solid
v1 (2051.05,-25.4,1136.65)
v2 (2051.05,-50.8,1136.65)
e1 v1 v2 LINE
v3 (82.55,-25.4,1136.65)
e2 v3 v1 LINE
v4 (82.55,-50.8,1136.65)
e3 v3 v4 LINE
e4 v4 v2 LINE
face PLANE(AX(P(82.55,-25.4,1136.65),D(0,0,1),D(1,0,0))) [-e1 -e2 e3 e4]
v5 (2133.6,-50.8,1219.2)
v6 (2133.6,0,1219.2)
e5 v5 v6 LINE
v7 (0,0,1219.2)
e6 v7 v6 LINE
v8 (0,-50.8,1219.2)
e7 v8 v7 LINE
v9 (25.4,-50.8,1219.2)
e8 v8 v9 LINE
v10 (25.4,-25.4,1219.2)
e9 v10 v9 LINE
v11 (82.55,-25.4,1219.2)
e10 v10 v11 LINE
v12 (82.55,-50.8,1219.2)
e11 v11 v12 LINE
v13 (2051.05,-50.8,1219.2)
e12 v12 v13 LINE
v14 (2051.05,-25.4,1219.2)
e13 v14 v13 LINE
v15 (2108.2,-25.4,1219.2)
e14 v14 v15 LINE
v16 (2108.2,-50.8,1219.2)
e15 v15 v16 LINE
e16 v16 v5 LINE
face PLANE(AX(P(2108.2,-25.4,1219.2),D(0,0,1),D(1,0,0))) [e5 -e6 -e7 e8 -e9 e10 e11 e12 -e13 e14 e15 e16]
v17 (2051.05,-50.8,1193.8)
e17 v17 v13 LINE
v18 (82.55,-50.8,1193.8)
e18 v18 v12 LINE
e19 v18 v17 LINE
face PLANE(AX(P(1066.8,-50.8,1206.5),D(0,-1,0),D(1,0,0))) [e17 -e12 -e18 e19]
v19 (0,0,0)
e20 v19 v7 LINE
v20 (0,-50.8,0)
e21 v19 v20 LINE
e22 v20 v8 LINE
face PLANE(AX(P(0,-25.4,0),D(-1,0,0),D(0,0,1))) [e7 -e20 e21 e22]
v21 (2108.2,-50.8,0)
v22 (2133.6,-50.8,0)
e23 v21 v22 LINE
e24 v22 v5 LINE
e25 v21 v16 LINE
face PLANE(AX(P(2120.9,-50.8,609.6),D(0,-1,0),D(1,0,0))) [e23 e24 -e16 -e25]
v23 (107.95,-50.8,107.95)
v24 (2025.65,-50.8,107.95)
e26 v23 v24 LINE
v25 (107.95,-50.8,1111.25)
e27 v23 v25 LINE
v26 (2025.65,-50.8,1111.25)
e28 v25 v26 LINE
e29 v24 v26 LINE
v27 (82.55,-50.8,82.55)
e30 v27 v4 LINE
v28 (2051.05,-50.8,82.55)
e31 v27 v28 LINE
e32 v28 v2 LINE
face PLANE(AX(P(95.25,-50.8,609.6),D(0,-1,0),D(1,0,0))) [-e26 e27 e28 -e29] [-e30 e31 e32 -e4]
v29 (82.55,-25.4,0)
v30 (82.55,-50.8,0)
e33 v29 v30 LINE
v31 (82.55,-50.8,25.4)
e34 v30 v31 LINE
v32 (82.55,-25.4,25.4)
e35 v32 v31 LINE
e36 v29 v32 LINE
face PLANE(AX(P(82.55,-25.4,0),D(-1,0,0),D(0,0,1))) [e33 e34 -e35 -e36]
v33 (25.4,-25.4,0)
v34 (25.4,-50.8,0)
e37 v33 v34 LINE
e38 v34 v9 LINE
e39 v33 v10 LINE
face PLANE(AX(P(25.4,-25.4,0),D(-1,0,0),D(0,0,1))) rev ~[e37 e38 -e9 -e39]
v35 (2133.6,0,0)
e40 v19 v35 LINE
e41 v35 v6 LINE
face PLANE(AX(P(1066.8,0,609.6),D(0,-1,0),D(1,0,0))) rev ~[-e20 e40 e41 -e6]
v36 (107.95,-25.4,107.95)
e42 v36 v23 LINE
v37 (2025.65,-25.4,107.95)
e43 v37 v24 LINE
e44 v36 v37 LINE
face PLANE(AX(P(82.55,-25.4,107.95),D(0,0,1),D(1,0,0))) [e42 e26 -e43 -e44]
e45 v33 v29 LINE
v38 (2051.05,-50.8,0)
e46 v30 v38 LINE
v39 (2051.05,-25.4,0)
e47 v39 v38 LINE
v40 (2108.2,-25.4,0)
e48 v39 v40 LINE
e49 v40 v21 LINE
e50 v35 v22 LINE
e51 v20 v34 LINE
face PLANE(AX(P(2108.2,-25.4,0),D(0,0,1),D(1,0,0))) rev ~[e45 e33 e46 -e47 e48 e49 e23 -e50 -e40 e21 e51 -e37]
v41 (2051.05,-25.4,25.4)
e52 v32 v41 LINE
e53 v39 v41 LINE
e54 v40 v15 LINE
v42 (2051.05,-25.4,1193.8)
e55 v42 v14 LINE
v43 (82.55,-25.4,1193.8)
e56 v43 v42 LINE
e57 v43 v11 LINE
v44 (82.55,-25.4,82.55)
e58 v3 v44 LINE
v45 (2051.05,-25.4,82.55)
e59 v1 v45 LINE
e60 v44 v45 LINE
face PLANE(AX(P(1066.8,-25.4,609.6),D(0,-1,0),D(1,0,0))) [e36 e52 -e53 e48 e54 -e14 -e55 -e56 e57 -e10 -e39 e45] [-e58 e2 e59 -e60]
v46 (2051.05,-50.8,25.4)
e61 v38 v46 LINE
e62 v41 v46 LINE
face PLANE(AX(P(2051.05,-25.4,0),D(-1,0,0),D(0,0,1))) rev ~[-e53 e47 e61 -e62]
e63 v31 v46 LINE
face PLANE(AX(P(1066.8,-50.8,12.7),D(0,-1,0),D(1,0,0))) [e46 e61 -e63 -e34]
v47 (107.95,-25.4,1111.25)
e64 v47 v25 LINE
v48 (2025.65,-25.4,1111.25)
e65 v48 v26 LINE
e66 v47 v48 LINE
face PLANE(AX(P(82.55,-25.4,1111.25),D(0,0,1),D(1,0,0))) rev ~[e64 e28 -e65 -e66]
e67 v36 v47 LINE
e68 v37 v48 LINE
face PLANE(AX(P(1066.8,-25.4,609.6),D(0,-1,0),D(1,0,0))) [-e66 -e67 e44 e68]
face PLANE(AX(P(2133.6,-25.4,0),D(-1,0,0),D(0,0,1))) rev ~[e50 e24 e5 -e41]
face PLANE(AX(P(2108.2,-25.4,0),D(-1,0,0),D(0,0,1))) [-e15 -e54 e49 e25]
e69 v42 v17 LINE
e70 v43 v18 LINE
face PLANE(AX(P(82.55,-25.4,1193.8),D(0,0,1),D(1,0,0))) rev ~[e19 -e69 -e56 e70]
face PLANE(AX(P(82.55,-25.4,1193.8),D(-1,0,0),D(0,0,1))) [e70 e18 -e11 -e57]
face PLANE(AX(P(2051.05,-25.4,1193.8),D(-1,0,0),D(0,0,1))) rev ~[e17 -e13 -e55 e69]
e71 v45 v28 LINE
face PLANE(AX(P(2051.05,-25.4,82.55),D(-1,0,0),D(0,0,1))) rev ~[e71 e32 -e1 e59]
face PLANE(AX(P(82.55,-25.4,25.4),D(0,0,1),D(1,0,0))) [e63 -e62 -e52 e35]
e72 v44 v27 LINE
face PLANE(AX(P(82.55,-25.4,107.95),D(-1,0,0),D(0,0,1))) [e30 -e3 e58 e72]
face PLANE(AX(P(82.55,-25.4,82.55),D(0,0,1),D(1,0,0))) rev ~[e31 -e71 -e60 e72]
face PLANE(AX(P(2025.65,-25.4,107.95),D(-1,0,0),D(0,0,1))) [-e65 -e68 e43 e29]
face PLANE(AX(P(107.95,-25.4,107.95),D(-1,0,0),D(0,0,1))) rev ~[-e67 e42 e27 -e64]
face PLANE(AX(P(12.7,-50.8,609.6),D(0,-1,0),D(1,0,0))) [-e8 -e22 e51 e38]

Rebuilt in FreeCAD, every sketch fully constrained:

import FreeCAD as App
import Part
import Sketcher
Q = App.Units.Quantity

doc = App.newDocument("Part")
body = doc.addObject("PartDesign::Body", "Body")

# Sketch on XZ plane
sketch1 = body.newObject("Sketcher::SketchObject", "Sketch")
sketch1.AttachmentSupport = (doc.getObject("XZ_Plane"), [""])
sketch1.MapMode = "FlatFace"
sketch1.addGeometry([
    Part.LineSegment(App.Vector(0, 1219, 0), App.Vector(0, 0, 0)),
    Part.LineSegment(App.Vector(0, 0, 0), App.Vector(2134, 0, 0)),
    Part.LineSegment(App.Vector(2134, 0, 0), App.Vector(2134, 1219, 0)),
    Part.LineSegment(App.Vector(2134, 1219, 0), App.Vector(0, 1219, 0)),
], False)
sketch1.addConstraint([
    Sketcher.Constraint("Coincident", 0, 2, 1, 1),
    Sketcher.Constraint("Coincident", 1, 2, 2, 1),
    Sketcher.Constraint("Coincident", 2, 2, 3, 1),
    Sketcher.Constraint("Coincident", 3, 2, 0, 1),
    Sketcher.Constraint("Vertical", 0),
    Sketcher.Constraint("Horizontal", 1),
    Sketcher.Constraint("Vertical", 2),
    Sketcher.Constraint("Horizontal", 3),
    Sketcher.Constraint("Coincident", 0, 2, -1, 1),
    Sketcher.Constraint("DistanceX", 1, 1, 1, 2, Q("84 in")),
    Sketcher.Constraint("DistanceY", 0, 2, 0, 1, Q("48 in")),
])
pad1 = body.newObject("PartDesign::Pad", "Pad")
pad1.Profile = sketch1
pad1.Length = Q("1 in")

# Sketch on XZ plane
sketch2 = body.newObject("Sketcher::SketchObject", "Sketch001")
sketch2.AttachmentSupport = (doc.getObject("XZ_Plane"), [""])
sketch2.MapMode = "FlatFace"
sketch2.AttachmentOffset = App.Placement(App.Vector(0, 0, 1 * 25.4), App.Rotation())
sketch2.addGeometry([
    Part.LineSegment(App.Vector(83, 1219, 0), App.Vector(83, 1194, 0)),
    Part.LineSegment(App.Vector(83, 1194, 0), App.Vector(2051, 1194, 0)),
    Part.LineSegment(App.Vector(2051, 1194, 0), App.Vector(2051, 1219, 0)),
    Part.LineSegment(App.Vector(2051, 1219, 0), App.Vector(83, 1219, 0)),
], False)
sketch2.addConstraint([
    Sketcher.Constraint("Coincident", 0, 2, 1, 1),
    Sketcher.Constraint("Coincident", 1, 2, 2, 1),
    Sketcher.Constraint("Coincident", 2, 2, 3, 1),
    Sketcher.Constraint("Coincident", 3, 2, 0, 1),
    Sketcher.Constraint("Vertical", 0),
    Sketcher.Constraint("Horizontal", 1),
    Sketcher.Constraint("Vertical", 2),
    Sketcher.Constraint("Horizontal", 3),
    Sketcher.Constraint("DistanceY", 0, 2, 0, 1, Q("1 in")),
    Sketcher.Constraint("DistanceX", 1, 1, 1, 2, Q("77.5 in")),
    Sketcher.Constraint("DistanceY", -1, 1, 0, 2, Q("47 in")),
    Sketcher.Constraint("DistanceX", -1, 1, 0, 2, Q("3.25 in")),
])
pad2 = body.newObject("PartDesign::Pad", "Pad001")
pad2.Profile = sketch2
pad2.Length = Q("1 in")

# Sketch on XZ plane
sketch3 = body.newObject("Sketcher::SketchObject", "Sketch002")
sketch3.AttachmentSupport = (doc.getObject("XZ_Plane"), [""])
sketch3.MapMode = "FlatFace"
sketch3.AttachmentOffset = App.Placement(App.Vector(0, 0, 1 * 25.4), App.Rotation())
sketch3.addGeometry([
    Part.LineSegment(App.Vector(83, 25, 0), App.Vector(83, 0, 0)),
    Part.LineSegment(App.Vector(83, 0, 0), App.Vector(2051, 0, 0)),
    Part.LineSegment(App.Vector(2051, 0, 0), App.Vector(2051, 25, 0)),
    Part.LineSegment(App.Vector(2051, 25, 0), App.Vector(83, 25, 0)),
], False)
sketch3.addConstraint([
    Sketcher.Constraint("Coincident", 0, 2, 1, 1),
    Sketcher.Constraint("Coincident", 1, 2, 2, 1),
    Sketcher.Constraint("Coincident", 2, 2, 3, 1),
    Sketcher.Constraint("Coincident", 3, 2, 0, 1),
    Sketcher.Constraint("Vertical", 0),
    Sketcher.Constraint("Horizontal", 1),
    Sketcher.Constraint("Vertical", 2),
    Sketcher.Constraint("Horizontal", 3),
    Sketcher.Constraint("PointOnObject", 0, 2, -1),
    Sketcher.Constraint("DistanceY", 0, 2, 0, 1, Q("1 in")),
    Sketcher.Constraint("DistanceX", 1, 1, 1, 2, Q("77.5 in")),
    Sketcher.Constraint("DistanceX", -1, 1, 0, 2, Q("3.25 in")),
])
pad3 = body.newObject("PartDesign::Pad", "Pad002")
pad3.Profile = sketch3
pad3.Length = Q("1 in")

# Sketch on XZ plane
sketch4 = body.newObject("Sketcher::SketchObject", "Sketch003")
sketch4.AttachmentSupport = (doc.getObject("XZ_Plane"), [""])
sketch4.MapMode = "FlatFace"
sketch4.AttachmentOffset = App.Placement(App.Vector(0, 0, 1 * 25.4), App.Rotation())
sketch4.addGeometry([
    Part.LineSegment(App.Vector(0, 1219, 0), App.Vector(0, 0, 0)),
    Part.LineSegment(App.Vector(0, 0, 0), App.Vector(25, 0, 0)),
    Part.LineSegment(App.Vector(25, 0, 0), App.Vector(25, 1219, 0)),
    Part.LineSegment(App.Vector(25, 1219, 0), App.Vector(0, 1219, 0)),
], False)
sketch4.addConstraint([
    Sketcher.Constraint("Coincident", 0, 2, 1, 1),
    Sketcher.Constraint("Coincident", 1, 2, 2, 1),
    Sketcher.Constraint("Coincident", 2, 2, 3, 1),
    Sketcher.Constraint("Coincident", 3, 2, 0, 1),
    Sketcher.Constraint("Vertical", 0),
    Sketcher.Constraint("Horizontal", 1),
    Sketcher.Constraint("Vertical", 2),
    Sketcher.Constraint("Horizontal", 3),
    Sketcher.Constraint("Coincident", 0, 2, -1, 1),
    Sketcher.Constraint("DistanceX", 1, 1, 1, 2, Q("1 in")),
    Sketcher.Constraint("DistanceY", 0, 2, 0, 1, Q("48 in")),
])
pad4 = body.newObject("PartDesign::Pad", "Pad003")
pad4.Profile = sketch4
pad4.Length = Q("1 in")

# Sketch on XZ plane
sketch5 = body.newObject("Sketcher::SketchObject", "Sketch004")
sketch5.AttachmentSupport = (doc.getObject("XZ_Plane"), [""])
sketch5.MapMode = "FlatFace"
sketch5.AttachmentOffset = App.Placement(App.Vector(0, 0, 1 * 25.4), App.Rotation())
sketch5.addGeometry([
    Part.LineSegment(App.Vector(2108, 1219, 0), App.Vector(2108, 0, 0)),
    Part.LineSegment(App.Vector(2108, 0, 0), App.Vector(2134, 0, 0)),
    Part.LineSegment(App.Vector(2134, 0, 0), App.Vector(2134, 1219, 0)),
    Part.LineSegment(App.Vector(2134, 1219, 0), App.Vector(2108, 1219, 0)),
], False)
sketch5.addConstraint([
    Sketcher.Constraint("Coincident", 0, 2, 1, 1),
    Sketcher.Constraint("Coincident", 1, 2, 2, 1),
    Sketcher.Constraint("Coincident", 2, 2, 3, 1),
    Sketcher.Constraint("Coincident", 3, 2, 0, 1),
    Sketcher.Constraint("Vertical", 0),
    Sketcher.Constraint("Horizontal", 1),
    Sketcher.Constraint("Vertical", 2),
    Sketcher.Constraint("Horizontal", 3),
    Sketcher.Constraint("PointOnObject", 0, 2, -1),
    Sketcher.Constraint("DistanceX", 1, 1, 1, 2, Q("1 in")),
    Sketcher.Constraint("DistanceY", 0, 2, 0, 1, Q("48 in")),
    Sketcher.Constraint("DistanceX", -1, 1, 0, 2, Q("83 in")),
])
pad5 = body.newObject("PartDesign::Pad", "Pad004")
pad5.Profile = sketch5
pad5.Length = Q("1 in")

# Sketch on XZ plane
sketch6 = body.newObject("Sketcher::SketchObject", "Sketch005")
sketch6.AttachmentSupport = (doc.getObject("XZ_Plane"), [""])
sketch6.MapMode = "FlatFace"
sketch6.AttachmentOffset = App.Placement(App.Vector(0, 0, 1 * 25.4), App.Rotation())
sketch6.addGeometry([
    Part.LineSegment(App.Vector(83, 1137, 0), App.Vector(83, 1111, 0)),
    Part.LineSegment(App.Vector(83, 1111, 0), App.Vector(2051, 1111, 0)),
    Part.LineSegment(App.Vector(2051, 1111, 0), App.Vector(2051, 1137, 0)),
    Part.LineSegment(App.Vector(2051, 1137, 0), App.Vector(83, 1137, 0)),
], False)
sketch6.addConstraint([
    Sketcher.Constraint("Coincident", 0, 2, 1, 1),
    Sketcher.Constraint("Coincident", 1, 2, 2, 1),
    Sketcher.Constraint("Coincident", 2, 2, 3, 1),
    Sketcher.Constraint("Coincident", 3, 2, 0, 1),
    Sketcher.Constraint("Vertical", 0),
    Sketcher.Constraint("Horizontal", 1),
    Sketcher.Constraint("Vertical", 2),
    Sketcher.Constraint("Horizontal", 3),
    Sketcher.Constraint("DistanceY", 0, 2, 0, 1, Q("1 in")),
    Sketcher.Constraint("DistanceX", 1, 1, 1, 2, Q("77.5 in")),
    Sketcher.Constraint("DistanceX", -1, 1, 0, 2, Q("3.25 in")),
    Sketcher.Constraint("DistanceY", -1, 1, 0, 2, Q("43.75 in")),
])
pad6 = body.newObject("PartDesign::Pad", "Pad005")
pad6.Profile = sketch6
pad6.Length = Q("1 in")

# Sketch on XZ plane
sketch7 = body.newObject("Sketcher::SketchObject", "Sketch006")
sketch7.AttachmentSupport = (doc.getObject("XZ_Plane"), [""])
sketch7.MapMode = "FlatFace"
sketch7.AttachmentOffset = App.Placement(App.Vector(0, 0, 1 * 25.4), App.Rotation())
sketch7.addGeometry([
    Part.LineSegment(App.Vector(83, 108, 0), App.Vector(83, 83, 0)),
    Part.LineSegment(App.Vector(83, 83, 0), App.Vector(2051, 83, 0)),
    Part.LineSegment(App.Vector(2051, 83, 0), App.Vector(2051, 108, 0)),
    Part.LineSegment(App.Vector(2051, 108, 0), App.Vector(83, 108, 0)),
], False)
sketch7.addConstraint([
    Sketcher.Constraint("Coincident", 0, 2, 1, 1),
    Sketcher.Constraint("Coincident", 1, 2, 2, 1),
    Sketcher.Constraint("Coincident", 2, 2, 3, 1),
    Sketcher.Constraint("Coincident", 3, 2, 0, 1),
    Sketcher.Constraint("Vertical", 0),
    Sketcher.Constraint("Horizontal", 1),
    Sketcher.Constraint("Vertical", 2),
    Sketcher.Constraint("Horizontal", 3),
    Sketcher.Constraint("DistanceY", 0, 2, 0, 1, Q("1 in")),
    Sketcher.Constraint("DistanceX", 1, 1, 1, 2, Q("77.5 in")),
    Sketcher.Constraint("DistanceX", -1, 1, 0, 2, Q("3.25 in")),
    Sketcher.Constraint("DistanceY", -1, 1, 0, 2, Q("3.25 in")),
])
pad7 = body.newObject("PartDesign::Pad", "Pad006")
pad7.Profile = sketch7
pad7.Length = Q("1 in")

# Sketch on XZ plane
sketch8 = body.newObject("Sketcher::SketchObject", "Sketch007")
sketch8.AttachmentSupport = (doc.getObject("XZ_Plane"), [""])
sketch8.MapMode = "FlatFace"
sketch8.AttachmentOffset = App.Placement(App.Vector(0, 0, 1 * 25.4), App.Rotation())
sketch8.addGeometry([
    Part.LineSegment(App.Vector(2026, 1111, 0), App.Vector(2026, 108, 0)),
    Part.LineSegment(App.Vector(2026, 108, 0), App.Vector(2051, 108, 0)),
    Part.LineSegment(App.Vector(2051, 108, 0), App.Vector(2051, 1111, 0)),
    Part.LineSegment(App.Vector(2051, 1111, 0), App.Vector(2026, 1111, 0)),
], False)
sketch8.addConstraint([
    Sketcher.Constraint("Coincident", 0, 2, 1, 1),
    Sketcher.Constraint("Coincident", 1, 2, 2, 1),
    Sketcher.Constraint("Coincident", 2, 2, 3, 1),
    Sketcher.Constraint("Coincident", 3, 2, 0, 1),
    Sketcher.Constraint("Vertical", 0),
    Sketcher.Constraint("Horizontal", 1),
    Sketcher.Constraint("Vertical", 2),
    Sketcher.Constraint("Horizontal", 3),
    Sketcher.Constraint("DistanceX", 1, 1, 1, 2, Q("1 in")),
    Sketcher.Constraint("DistanceY", 0, 2, 0, 1, Q("39.5 in")),
    Sketcher.Constraint("DistanceX", -1, 1, 0, 2, Q("79.75 in")),
    Sketcher.Constraint("DistanceY", -1, 1, 0, 2, Q("4.25 in")),
])
pad8 = body.newObject("PartDesign::Pad", "Pad007")
pad8.Profile = sketch8
pad8.Length = Q("1 in")

# Sketch on XZ plane
sketch9 = body.newObject("Sketcher::SketchObject", "Sketch008")
sketch9.AttachmentSupport = (doc.getObject("XZ_Plane"), [""])
sketch9.MapMode = "FlatFace"
sketch9.AttachmentOffset = App.Placement(App.Vector(0, 0, 1 * 25.4), App.Rotation())
sketch9.addGeometry([
    Part.LineSegment(App.Vector(83, 1111, 0), App.Vector(83, 108, 0)),
    Part.LineSegment(App.Vector(83, 108, 0), App.Vector(108, 108, 0)),
    Part.LineSegment(App.Vector(108, 108, 0), App.Vector(108, 1111, 0)),
    Part.LineSegment(App.Vector(108, 1111, 0), App.Vector(83, 1111, 0)),
], False)
sketch9.addConstraint([
    Sketcher.Constraint("Coincident", 0, 2, 1, 1),
    Sketcher.Constraint("Coincident", 1, 2, 2, 1),
    Sketcher.Constraint("Coincident", 2, 2, 3, 1),
    Sketcher.Constraint("Coincident", 3, 2, 0, 1),
    Sketcher.Constraint("Vertical", 0),
    Sketcher.Constraint("Horizontal", 1),
    Sketcher.Constraint("Vertical", 2),
    Sketcher.Constraint("Horizontal", 3),
    Sketcher.Constraint("DistanceX", 1, 1, 1, 2, Q("1 in")),
    Sketcher.Constraint("DistanceY", 0, 2, 0, 1, Q("39.5 in")),
    Sketcher.Constraint("DistanceX", -1, 1, 0, 2, Q("3.25 in")),
    Sketcher.Constraint("DistanceY", -1, 1, 0, 2, Q("4.25 in")),
])
pad9 = body.newObject("PartDesign::Pad", "Pad008")
pad9.Profile = sketch9
pad9.Length = Q("1 in")

doc.recompute()
